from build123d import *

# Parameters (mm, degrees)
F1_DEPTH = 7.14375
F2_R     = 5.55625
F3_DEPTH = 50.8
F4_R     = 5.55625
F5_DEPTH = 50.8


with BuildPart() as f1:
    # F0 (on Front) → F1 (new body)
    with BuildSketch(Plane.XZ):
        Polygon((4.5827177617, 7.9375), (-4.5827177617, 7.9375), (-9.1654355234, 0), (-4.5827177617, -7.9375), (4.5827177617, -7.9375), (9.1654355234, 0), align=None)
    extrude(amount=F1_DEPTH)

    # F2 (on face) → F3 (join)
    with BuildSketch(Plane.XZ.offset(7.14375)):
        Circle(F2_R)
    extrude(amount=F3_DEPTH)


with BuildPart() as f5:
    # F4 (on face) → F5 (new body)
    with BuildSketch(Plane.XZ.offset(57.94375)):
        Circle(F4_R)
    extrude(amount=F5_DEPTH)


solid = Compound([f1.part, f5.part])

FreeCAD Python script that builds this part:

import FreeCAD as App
import Part
import Sketcher

V = App.Vector
Q = App.Units.Quantity

doc = App.newDocument("Part")
body = doc.addObject("PartDesign::Body", "Body")

sketch1 = doc.addObject("Sketcher::SketchObject", "Sketch")
body.addObject(sketch1)
sketch1.AttachmentSupport = (doc.XZ_Plane, [""])
sketch1.MapMode = "FlatFace"
sketch1.addGeometry([
    Part.LineSegment(V(4.582718, 7.9375, 0), V(-4.582718, 7.9375, 0)),
    Part.LineSegment(V(-4.582718, 7.9375, 0), V(-9.165436, 0, 0)),
    Part.LineSegment(V(-9.165436, 0, 0), V(-4.582718, -7.9375, 0)),
    Part.LineSegment(V(-4.582718, -7.9375, 0), V(4.582718, -7.9375, 0)),
    Part.LineSegment(V(4.582718, -7.9375, 0), V(9.165436, 0, 0)),
    Part.LineSegment(V(9.165436, 0, 0), V(4.582718, 7.9375, 0)),
], False)
sketch1.addConstraint([
    Sketcher.Constraint("Coincident", 0, 2, 1, 1),
    Sketcher.Constraint("Coincident", 1, 2, 2, 1),
    Sketcher.Constraint("Coincident", 2, 2, 3, 1),
    Sketcher.Constraint("Coincident", 3, 2, 4, 1),
    Sketcher.Constraint("Coincident", 4, 2, 5, 1),
    Sketcher.Constraint("Coincident", 5, 2, 0, 1),
    Sketcher.Constraint("Horizontal", 0),
    Sketcher.Constraint("Horizontal", 3),
    Sketcher.Constraint("Symmetric", 0, 2, 3, 2, -1, 1),
    Sketcher.Constraint("Symmetric", 1, 2, 4, 2, -1, 1),
    Sketcher.Constraint("PointOnObject", 1, 2, -1),
    Sketcher.Constraint("Parallel", 2, 5),
    Sketcher.Constraint("Vertical", 0, 2, 2, 2),
    Sketcher.Constraint("Angle", 1, Q("-120 deg")),
    Sketcher.Constraint("DistanceY", -1, 1, 0, 2, Q("0.3125 in")),
    Sketcher.Constraint("DistanceX", 0, 2, 0, 1, 9.165436),
])
pad1 = doc.addObject("PartDesign::Pad", "Pad")
body.addObject(pad1)
pad1.Profile = sketch1
pad1.Length = Q("0.28125 in")

sketch2 = doc.addObject("Sketcher::SketchObject", "Sketch001")
body.addObject(sketch2)
sketch2.AttachmentSupport = (doc.XZ_Plane, [""])
sketch2.MapMode = "FlatFace"
sketch2.AttachmentOffset = App.Placement(V(0, 0, 0.28125 * 25.4), App.Rotation())
sketch2.addGeometry(Part.Circle(V(0, 0, 0), V(0, 0, 1), 5.55625), False)
sketch2.addConstraint([
    Sketcher.Constraint("Coincident", 0, 3, -1, 1),
    Sketcher.Constraint("Diameter", 0, Q("0.4375 in")),
])
pad2 = doc.addObject("PartDesign::Pad", "Pad001")
body.addObject(pad2)
pad2.Profile = sketch2
pad2.Length = Q("2 in")
body2 = doc.addObject("PartDesign::Body", "Body001")

sketch3 = doc.addObject("Sketcher::SketchObject", "Sketch002")
body2.addObject(sketch3)
sketch3.AttachmentSupport = (doc.getObject("XZ_Plane001"), [""])
sketch3.MapMode = "FlatFace"
sketch3.AttachmentOffset = App.Placement(V(0, 0, 2.28125 * 25.4), App.Rotation())
sketch3.addGeometry(Part.Circle(V(0, 0, 0), V(0, 0, 1), 5.55625), False)
sketch3.addConstraint([
    Sketcher.Constraint("Coincident", 0, 3, -1, 1),
    Sketcher.Constraint("Diameter", 0, Q("0.4375 in")),
])
pad3 = doc.addObject("PartDesign::Pad", "Pad002")
body2.addObject(pad3)
pad3.Profile = sketch3
pad3.Length = Q("2 in")

doc.recompute()
